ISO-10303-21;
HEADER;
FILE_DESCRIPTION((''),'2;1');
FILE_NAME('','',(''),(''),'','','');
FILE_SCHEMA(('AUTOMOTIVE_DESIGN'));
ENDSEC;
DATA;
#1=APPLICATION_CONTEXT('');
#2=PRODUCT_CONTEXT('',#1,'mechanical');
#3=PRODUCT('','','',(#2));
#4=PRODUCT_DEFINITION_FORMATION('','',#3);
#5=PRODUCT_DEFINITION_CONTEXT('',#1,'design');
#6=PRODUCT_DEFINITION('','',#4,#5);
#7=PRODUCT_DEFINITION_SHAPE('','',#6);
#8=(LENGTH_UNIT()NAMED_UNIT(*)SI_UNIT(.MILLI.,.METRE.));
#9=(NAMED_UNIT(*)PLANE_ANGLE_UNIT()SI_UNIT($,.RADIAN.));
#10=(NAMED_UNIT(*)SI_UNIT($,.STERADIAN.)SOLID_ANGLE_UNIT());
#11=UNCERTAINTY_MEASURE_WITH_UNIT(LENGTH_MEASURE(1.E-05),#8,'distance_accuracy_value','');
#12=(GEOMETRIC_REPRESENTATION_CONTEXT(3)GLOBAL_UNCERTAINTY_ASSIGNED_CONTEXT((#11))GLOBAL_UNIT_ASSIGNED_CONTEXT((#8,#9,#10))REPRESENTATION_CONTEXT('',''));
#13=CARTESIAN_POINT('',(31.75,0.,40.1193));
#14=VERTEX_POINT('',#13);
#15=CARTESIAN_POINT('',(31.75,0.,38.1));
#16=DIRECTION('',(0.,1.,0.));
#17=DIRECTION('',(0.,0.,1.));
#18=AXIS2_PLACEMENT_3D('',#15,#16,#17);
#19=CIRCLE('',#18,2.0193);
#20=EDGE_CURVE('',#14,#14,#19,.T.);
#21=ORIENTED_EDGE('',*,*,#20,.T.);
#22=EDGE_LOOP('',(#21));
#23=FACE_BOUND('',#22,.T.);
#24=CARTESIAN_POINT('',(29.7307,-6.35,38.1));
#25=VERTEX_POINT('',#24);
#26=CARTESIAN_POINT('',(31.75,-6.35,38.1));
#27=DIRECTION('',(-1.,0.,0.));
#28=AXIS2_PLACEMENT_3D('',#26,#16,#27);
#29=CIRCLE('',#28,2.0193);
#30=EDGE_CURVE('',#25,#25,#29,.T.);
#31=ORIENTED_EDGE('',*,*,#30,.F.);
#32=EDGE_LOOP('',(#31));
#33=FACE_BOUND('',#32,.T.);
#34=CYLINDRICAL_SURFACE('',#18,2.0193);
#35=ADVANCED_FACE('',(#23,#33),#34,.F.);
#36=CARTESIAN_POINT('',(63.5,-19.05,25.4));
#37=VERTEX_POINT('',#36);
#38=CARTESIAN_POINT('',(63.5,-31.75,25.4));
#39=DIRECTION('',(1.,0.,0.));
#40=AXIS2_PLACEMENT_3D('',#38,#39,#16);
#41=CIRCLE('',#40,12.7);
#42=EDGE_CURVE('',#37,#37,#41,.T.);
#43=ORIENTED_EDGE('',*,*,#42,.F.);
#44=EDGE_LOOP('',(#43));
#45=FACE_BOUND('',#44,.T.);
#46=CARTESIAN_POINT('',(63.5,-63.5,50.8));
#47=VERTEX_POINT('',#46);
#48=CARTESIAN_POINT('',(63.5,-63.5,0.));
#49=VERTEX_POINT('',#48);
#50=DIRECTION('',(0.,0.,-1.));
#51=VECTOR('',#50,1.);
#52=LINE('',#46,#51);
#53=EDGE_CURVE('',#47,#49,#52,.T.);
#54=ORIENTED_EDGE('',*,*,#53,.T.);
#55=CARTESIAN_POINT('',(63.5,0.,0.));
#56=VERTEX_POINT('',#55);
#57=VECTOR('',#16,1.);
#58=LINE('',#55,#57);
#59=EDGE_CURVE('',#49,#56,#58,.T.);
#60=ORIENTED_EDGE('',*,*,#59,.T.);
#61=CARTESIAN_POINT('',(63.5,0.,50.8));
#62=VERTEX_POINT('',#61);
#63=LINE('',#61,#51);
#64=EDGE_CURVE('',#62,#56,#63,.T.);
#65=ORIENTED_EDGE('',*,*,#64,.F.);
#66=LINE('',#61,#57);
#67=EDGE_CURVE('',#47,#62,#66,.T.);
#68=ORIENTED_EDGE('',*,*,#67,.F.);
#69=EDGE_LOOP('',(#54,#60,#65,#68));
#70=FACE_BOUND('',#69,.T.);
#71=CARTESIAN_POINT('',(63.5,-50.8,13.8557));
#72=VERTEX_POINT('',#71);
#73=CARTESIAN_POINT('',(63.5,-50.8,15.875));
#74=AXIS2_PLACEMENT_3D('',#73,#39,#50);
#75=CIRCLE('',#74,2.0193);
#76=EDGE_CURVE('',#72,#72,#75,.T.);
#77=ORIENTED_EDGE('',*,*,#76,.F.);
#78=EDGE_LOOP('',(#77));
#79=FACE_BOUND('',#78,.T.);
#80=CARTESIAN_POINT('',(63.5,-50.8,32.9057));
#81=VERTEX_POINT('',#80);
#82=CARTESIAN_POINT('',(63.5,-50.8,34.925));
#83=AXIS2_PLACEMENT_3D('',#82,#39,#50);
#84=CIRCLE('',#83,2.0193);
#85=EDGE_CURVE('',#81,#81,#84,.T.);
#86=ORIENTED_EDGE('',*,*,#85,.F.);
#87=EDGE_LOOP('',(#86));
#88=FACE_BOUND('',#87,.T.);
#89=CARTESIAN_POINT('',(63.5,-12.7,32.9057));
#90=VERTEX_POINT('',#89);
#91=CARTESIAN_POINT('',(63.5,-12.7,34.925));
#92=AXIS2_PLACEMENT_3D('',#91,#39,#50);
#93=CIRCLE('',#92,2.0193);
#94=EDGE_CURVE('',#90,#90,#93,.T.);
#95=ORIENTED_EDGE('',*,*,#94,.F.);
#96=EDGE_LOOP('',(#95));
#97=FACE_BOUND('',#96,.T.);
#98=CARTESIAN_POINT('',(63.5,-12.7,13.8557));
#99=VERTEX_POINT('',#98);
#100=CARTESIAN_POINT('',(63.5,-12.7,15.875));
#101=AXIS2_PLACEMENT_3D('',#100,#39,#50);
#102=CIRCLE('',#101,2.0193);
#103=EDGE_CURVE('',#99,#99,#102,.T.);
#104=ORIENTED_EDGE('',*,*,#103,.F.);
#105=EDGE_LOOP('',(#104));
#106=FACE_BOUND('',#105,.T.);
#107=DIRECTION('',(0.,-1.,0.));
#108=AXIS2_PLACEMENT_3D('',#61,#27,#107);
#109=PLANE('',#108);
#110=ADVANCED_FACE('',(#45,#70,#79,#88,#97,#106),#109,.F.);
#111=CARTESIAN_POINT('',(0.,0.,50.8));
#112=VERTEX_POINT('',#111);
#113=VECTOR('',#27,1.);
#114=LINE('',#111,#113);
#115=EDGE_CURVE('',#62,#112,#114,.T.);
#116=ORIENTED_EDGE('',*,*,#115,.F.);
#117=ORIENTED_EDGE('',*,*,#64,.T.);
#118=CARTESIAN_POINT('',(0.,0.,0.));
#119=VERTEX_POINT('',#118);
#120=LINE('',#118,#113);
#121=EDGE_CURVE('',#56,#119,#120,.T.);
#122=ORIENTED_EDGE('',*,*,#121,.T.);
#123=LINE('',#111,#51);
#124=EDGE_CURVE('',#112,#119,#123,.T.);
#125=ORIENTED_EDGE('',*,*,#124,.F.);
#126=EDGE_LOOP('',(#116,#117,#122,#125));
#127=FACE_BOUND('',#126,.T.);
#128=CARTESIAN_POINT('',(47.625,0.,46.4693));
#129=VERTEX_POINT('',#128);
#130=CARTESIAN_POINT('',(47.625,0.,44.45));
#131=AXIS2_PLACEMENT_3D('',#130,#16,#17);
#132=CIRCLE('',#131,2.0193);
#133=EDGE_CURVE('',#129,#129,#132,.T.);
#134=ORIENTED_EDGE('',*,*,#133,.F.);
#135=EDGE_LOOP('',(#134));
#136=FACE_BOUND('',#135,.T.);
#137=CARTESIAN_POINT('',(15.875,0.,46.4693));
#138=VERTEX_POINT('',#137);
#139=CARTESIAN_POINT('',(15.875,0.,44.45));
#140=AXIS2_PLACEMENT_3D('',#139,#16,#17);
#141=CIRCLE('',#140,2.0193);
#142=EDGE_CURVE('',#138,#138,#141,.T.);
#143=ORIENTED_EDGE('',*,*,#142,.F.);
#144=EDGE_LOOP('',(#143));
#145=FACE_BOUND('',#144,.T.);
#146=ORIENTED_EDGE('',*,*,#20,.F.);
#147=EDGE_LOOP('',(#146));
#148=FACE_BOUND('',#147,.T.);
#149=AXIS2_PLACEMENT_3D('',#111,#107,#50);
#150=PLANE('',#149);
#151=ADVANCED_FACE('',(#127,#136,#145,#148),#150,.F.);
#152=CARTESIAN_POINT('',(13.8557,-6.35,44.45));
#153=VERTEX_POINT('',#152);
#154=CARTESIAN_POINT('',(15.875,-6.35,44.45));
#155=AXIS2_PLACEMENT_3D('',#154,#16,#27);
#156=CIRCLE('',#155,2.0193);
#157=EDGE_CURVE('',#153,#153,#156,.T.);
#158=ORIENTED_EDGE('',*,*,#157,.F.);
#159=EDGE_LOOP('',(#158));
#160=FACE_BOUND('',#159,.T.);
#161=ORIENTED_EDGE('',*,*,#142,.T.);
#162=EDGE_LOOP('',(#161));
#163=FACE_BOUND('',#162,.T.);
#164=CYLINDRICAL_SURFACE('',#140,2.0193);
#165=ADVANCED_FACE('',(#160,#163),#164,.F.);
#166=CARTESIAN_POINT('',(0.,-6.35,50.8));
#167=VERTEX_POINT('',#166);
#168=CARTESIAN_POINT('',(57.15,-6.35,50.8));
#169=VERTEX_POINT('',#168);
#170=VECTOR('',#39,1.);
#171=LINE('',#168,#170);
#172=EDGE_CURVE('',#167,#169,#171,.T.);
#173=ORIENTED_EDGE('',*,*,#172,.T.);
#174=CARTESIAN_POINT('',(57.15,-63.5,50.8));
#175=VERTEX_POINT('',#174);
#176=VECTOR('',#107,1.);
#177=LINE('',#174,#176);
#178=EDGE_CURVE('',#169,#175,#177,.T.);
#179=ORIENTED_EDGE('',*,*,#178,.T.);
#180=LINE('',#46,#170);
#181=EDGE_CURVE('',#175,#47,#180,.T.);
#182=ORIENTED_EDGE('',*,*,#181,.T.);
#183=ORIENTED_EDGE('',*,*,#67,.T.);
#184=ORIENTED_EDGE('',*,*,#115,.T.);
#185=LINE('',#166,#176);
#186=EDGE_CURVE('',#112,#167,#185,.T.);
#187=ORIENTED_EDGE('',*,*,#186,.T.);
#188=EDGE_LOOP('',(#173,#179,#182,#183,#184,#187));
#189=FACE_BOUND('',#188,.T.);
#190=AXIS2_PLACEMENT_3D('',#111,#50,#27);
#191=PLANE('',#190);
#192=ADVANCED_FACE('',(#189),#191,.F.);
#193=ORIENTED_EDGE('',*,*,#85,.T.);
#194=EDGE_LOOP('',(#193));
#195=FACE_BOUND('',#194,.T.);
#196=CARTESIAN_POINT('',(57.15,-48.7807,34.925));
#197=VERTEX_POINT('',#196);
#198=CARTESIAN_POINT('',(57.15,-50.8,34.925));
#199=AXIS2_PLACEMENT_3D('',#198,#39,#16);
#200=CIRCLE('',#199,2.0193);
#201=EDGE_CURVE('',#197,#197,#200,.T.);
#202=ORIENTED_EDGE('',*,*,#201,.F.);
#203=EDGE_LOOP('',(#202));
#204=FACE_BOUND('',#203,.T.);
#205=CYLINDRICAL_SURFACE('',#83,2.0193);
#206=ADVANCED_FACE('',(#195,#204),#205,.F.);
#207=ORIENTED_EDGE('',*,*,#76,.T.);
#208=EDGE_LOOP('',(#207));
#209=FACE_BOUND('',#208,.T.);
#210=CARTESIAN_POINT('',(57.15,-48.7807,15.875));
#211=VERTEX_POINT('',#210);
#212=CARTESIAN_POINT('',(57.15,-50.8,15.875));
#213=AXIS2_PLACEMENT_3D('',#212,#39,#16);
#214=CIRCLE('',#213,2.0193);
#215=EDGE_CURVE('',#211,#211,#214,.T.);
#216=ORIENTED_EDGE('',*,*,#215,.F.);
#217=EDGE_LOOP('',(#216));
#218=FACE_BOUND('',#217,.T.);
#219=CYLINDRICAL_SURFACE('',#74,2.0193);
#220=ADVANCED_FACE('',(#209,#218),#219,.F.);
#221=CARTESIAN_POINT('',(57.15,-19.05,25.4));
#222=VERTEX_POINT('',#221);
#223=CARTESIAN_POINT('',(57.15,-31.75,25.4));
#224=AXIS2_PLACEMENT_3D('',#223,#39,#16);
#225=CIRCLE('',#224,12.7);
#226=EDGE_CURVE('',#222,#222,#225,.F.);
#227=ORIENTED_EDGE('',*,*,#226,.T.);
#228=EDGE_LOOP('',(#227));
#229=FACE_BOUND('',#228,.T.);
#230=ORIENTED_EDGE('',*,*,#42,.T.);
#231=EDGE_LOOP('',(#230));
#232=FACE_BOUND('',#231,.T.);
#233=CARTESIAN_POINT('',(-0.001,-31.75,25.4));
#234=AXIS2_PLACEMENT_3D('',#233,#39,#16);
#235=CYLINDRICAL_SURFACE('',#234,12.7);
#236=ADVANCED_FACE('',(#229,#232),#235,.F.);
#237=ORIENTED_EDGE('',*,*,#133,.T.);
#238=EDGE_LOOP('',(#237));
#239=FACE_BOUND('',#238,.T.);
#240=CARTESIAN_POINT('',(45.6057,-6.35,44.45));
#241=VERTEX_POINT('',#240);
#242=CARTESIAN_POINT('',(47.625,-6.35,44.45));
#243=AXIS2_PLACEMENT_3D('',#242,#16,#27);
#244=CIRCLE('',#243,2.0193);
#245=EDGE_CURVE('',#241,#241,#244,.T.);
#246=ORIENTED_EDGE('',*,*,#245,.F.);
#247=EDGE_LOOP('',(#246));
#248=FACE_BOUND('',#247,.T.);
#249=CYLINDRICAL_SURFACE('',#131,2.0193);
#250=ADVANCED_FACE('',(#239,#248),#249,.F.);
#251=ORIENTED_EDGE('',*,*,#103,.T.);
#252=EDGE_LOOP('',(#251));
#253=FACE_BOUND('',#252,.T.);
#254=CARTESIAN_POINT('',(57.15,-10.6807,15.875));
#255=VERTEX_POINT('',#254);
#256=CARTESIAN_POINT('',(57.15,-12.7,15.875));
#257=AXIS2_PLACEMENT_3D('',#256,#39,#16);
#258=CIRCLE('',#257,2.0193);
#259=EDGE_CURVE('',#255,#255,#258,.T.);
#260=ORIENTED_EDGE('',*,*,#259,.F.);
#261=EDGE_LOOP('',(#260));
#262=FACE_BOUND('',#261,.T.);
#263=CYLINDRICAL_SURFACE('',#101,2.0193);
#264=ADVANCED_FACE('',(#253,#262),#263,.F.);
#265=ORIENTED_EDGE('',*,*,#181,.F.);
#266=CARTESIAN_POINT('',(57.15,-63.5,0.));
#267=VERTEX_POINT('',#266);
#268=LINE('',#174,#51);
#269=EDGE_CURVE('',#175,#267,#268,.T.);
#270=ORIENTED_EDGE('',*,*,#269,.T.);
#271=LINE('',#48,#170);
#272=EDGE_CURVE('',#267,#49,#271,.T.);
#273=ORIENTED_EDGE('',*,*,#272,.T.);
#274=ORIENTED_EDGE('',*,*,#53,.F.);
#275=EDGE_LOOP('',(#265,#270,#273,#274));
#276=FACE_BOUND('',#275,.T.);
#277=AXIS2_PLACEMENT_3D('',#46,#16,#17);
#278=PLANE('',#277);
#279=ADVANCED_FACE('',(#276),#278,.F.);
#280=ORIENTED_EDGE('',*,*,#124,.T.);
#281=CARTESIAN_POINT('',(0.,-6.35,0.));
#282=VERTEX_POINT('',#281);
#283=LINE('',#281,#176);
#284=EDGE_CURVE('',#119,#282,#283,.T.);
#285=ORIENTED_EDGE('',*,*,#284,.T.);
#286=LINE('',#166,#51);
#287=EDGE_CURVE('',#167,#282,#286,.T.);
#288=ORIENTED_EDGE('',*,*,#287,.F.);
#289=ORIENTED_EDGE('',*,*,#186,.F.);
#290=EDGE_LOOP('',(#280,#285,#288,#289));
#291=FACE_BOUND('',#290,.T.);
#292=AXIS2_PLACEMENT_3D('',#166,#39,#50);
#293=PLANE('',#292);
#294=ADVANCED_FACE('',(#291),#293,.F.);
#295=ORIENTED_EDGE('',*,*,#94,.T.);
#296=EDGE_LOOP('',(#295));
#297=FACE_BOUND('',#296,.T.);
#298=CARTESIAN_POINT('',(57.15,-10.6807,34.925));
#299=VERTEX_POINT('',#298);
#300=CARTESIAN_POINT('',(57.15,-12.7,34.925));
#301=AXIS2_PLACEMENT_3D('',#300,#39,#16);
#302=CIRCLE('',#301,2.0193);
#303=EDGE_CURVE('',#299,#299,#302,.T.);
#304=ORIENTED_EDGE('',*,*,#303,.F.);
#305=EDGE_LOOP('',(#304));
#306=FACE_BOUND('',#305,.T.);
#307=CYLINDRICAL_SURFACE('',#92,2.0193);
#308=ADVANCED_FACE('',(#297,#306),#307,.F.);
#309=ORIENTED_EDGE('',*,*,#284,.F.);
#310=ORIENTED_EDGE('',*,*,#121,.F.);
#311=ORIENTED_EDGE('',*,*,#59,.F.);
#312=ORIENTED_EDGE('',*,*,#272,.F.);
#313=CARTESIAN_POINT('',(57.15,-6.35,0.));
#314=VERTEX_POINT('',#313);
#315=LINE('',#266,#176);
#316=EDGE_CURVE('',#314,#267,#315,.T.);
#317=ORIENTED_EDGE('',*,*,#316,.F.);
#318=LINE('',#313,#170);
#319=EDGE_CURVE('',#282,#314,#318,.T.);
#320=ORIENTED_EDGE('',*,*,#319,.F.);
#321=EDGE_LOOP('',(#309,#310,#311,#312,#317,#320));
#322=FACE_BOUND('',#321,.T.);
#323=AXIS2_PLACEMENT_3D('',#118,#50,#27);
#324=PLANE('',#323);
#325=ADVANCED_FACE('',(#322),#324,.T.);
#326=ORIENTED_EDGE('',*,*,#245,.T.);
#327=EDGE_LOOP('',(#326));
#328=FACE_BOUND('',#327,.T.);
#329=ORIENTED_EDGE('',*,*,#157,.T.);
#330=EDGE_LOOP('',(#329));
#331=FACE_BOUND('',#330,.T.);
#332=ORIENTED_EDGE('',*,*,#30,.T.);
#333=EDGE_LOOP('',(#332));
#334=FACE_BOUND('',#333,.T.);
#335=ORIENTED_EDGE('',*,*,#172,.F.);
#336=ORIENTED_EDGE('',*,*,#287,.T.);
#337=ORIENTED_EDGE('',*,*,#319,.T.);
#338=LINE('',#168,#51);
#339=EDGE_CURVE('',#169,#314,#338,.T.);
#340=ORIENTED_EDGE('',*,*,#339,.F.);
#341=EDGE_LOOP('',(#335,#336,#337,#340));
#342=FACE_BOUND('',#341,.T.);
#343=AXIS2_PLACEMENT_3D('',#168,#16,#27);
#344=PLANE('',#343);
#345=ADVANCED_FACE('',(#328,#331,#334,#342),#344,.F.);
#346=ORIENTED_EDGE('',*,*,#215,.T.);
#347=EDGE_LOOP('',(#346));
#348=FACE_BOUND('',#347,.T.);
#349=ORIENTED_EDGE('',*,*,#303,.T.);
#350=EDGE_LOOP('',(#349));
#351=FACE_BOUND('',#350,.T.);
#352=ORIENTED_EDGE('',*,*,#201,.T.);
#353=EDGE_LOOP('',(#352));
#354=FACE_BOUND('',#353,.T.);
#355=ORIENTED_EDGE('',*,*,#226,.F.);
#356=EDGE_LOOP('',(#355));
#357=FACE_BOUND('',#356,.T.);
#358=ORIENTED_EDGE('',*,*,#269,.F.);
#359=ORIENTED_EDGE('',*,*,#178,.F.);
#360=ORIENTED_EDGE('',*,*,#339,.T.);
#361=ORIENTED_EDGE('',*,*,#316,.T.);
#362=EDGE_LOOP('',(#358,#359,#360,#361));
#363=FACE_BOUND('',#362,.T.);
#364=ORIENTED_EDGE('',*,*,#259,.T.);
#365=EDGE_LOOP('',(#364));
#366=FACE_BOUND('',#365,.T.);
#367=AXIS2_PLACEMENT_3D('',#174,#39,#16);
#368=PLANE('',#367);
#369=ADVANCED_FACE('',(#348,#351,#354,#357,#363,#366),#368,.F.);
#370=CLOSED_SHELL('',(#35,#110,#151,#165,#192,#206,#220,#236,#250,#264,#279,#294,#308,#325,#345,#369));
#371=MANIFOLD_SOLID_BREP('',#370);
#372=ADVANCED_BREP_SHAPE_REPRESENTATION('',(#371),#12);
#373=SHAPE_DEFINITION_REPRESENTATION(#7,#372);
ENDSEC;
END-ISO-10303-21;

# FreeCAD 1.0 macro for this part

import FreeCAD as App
import Part
import Sketcher
Q = App.Units.Quantity

doc = App.newDocument("Part")
body = doc.addObject("PartDesign::Body", "Body")

sketch1 = body.newObject("Sketcher::SketchObject", "Sketch")
sketch1.AttachmentSupport = (doc.getObject("XY_Plane"), [""])
sketch1.MapMode = "FlatFace"
sketch1.addGeometry([
    Part.LineSegment(App.Vector(64, 0, 0), App.Vector(0, 0, 0)),
    Part.LineSegment(App.Vector(0, 0, 0), App.Vector(0, -6, 0)),
    Part.LineSegment(App.Vector(0, -6, 0), App.Vector(57, -6, 0)),
    Part.LineSegment(App.Vector(57, -6, 0), App.Vector(57, -64, 0)),
    Part.LineSegment(App.Vector(57, -64, 0), App.Vector(64, -64, 0)),
    Part.LineSegment(App.Vector(64, -64, 0), App.Vector(64, 0, 0)),
], False)
sketch1.addConstraint([
    Sketcher.Constraint("Coincident", 0, 2, 1, 1),
    Sketcher.Constraint("Coincident", 1, 2, 2, 1),
    Sketcher.Constraint("Coincident", 2, 2, 3, 1),
    Sketcher.Constraint("Coincident", 3, 2, 4, 1),
    Sketcher.Constraint("Coincident", 4, 2, 5, 1),
    Sketcher.Constraint("Coincident", 5, 2, 0, 1),
    Sketcher.Constraint("Horizontal", 0),
    Sketcher.Constraint("Vertical", 1),
    Sketcher.Constraint("Horizontal", 2),
    Sketcher.Constraint("Vertical", 3),
    Sketcher.Constraint("Horizontal", 4),
    Sketcher.Constraint("Vertical", 5),
    Sketcher.Constraint("Coincident", 0, 2, -1, 1),
    Sketcher.Constraint("Equal", 4, 1),
    Sketcher.Constraint("Equal", 2, 3),
    Sketcher.Constraint("DistanceX", 0, 2, 0, 1, Q("2.5 in")),
    Sketcher.Constraint("DistanceX", 2, 1, 2, 2, Q("2.25 in")),
])
pad1 = body.newObject("PartDesign::Pad", "Pad")
pad1.Profile = sketch1
pad1.Length = Q("2 in")

sketch2 = body.newObject("Sketcher::SketchObject", "Sketch001")
sketch2.AttachmentSupport = (doc.getObject("YZ_Plane"), [""])
sketch2.MapMode = "FlatFace"
sketch2.AttachmentOffset = App.Placement(App.Vector(0, 0, 2.5 * 25.4), App.Rotation())
sketch2.addGeometry(Part.Circle(App.Vector(-32, 25, 0), App.Vector(0, 0, 1), 13), False)
sketch2.addConstraint([
    Sketcher.Constraint("Diameter", 0, Q("1 in")),
    Sketcher.Constraint("DistanceY", -1, 1, 0, 3, Q("1 in")),
    Sketcher.Constraint("DistanceX", 0, 3, -1, 1, Q("1.25 in")),
])
pocket1 = body.newObject("PartDesign::Pocket", "Pocket")
pocket1.Profile = sketch2
pocket1.Type = "UpToFirst"

sketch3 = body.newObject("Sketcher::SketchObject", "Sketch002")
sketch3.AttachmentSupport = (doc.getObject("YZ_Plane"), [""])
sketch3.MapMode = "FlatFace"
sketch3.AttachmentOffset = App.Placement(App.Vector(0, 0, 2.5 * 25.4), App.Rotation())
sketch3.addGeometry([
    Part.Circle(App.Vector(-50.8, 34.9, 0), App.Vector(0, 0, 1), 2),
    Part.Circle(App.Vector(-50.8, 15.9, 0), App.Vector(0, 0, 1), 2),
    Part.Circle(App.Vector(-12.7, 34.9, 0), App.Vector(0, 0, 1), 2),
    Part.Circle(App.Vector(-12.7, 15.9, 0), App.Vector(0, 0, 1), 2),
], False)
sketch3.addConstraint([
    Sketcher.Constraint("Equal", 0, 1),
    Sketcher.Constraint("Equal", 1, 2),
    Sketcher.Constraint("Equal", 2, 3),
    Sketcher.Constraint("Horizontal", 0, 3, 2, 3),
    Sketcher.Constraint("Horizontal", 1, 3, 3, 3),
    Sketcher.Constraint("Vertical", 0, 3, 1, 3),
    Sketcher.Constraint("Vertical", 2, 3, 3, 3),
    Sketcher.Constraint("Diameter", 0, Q("0.159 in")),
    Sketcher.Constraint("DistanceX", 0, 3, -1, 1, Q("2 in")),
    Sketcher.Constraint("DistanceX", 2, 3, -1, 1, Q("0.5 in")),
    Sketcher.Constraint("DistanceY", 1, 3, 0, 3, Q("0.75 in")),
    Sketcher.Constraint("DistanceY", -1, 1, 0, 3, Q("1.375 in")),
])
doc.recompute()
hole = body.newObject("PartDesign::Hole", "Hole")
hole.Profile = sketch3
hole.ThreadType = "None"
hole.Diameter = Q("0.159 in")
hole.DepthType = "Dimension"
hole.Depth = Q("0.25 in")
hole.DrillPoint = "Flat"

sketch4 = body.newObject("Sketcher::SketchObject", "Sketch003")
sketch4.AttachmentSupport = (doc.getObject("XZ_Plane"), [""])
sketch4.MapMode = "FlatFace"
sketch4.addGeometry([
    Part.Circle(App.Vector(47.6, 44.5, 0), App.Vector(0, 0, 1), 2),
    Part.Circle(App.Vector(31.8, 38.1, 0), App.Vector(0, 0, 1), 2),
    Part.Circle(App.Vector(15.9, 44.5, 0), App.Vector(0, 0, 1), 2),
], False)
sketch4.addConstraint([
    Sketcher.Constraint("Equal", 0, 1),
    Sketcher.Constraint("Equal", 1, 2),
    Sketcher.Constraint("Horizontal", 0, 3, 2, 3),
    Sketcher.Constraint("Diameter", 0, Q("0.159 in")),
    Sketcher.Constraint("DistanceY", -1, 1, 1, 3, Q("1.5 in")),
    Sketcher.Constraint("DistanceY", -1, 1, 0, 3, Q("1.75 in")),
    Sketcher.Constraint("DistanceX", -1, 1, 1, 3, Q("1.25 in")),
    Sketcher.Constraint("DistanceX", 2, 3, 0, 3, Q("1.25 in")),
    Sketcher.Constraint("DistanceX", -1, 1, 0, 3, Q("1.875 in")),
])
doc.recompute()
hole2 = body.newObject("PartDesign::Hole", "Hole001")
hole2.Profile = sketch4
hole2.ThreadType = "None"
hole2.Diameter = Q("0.159 in")
hole2.DepthType = "Dimension"
hole2.Depth = Q("0.25 in")
hole2.DrillPoint = "Flat"
hole2.Reversed = True

doc.recompute()
